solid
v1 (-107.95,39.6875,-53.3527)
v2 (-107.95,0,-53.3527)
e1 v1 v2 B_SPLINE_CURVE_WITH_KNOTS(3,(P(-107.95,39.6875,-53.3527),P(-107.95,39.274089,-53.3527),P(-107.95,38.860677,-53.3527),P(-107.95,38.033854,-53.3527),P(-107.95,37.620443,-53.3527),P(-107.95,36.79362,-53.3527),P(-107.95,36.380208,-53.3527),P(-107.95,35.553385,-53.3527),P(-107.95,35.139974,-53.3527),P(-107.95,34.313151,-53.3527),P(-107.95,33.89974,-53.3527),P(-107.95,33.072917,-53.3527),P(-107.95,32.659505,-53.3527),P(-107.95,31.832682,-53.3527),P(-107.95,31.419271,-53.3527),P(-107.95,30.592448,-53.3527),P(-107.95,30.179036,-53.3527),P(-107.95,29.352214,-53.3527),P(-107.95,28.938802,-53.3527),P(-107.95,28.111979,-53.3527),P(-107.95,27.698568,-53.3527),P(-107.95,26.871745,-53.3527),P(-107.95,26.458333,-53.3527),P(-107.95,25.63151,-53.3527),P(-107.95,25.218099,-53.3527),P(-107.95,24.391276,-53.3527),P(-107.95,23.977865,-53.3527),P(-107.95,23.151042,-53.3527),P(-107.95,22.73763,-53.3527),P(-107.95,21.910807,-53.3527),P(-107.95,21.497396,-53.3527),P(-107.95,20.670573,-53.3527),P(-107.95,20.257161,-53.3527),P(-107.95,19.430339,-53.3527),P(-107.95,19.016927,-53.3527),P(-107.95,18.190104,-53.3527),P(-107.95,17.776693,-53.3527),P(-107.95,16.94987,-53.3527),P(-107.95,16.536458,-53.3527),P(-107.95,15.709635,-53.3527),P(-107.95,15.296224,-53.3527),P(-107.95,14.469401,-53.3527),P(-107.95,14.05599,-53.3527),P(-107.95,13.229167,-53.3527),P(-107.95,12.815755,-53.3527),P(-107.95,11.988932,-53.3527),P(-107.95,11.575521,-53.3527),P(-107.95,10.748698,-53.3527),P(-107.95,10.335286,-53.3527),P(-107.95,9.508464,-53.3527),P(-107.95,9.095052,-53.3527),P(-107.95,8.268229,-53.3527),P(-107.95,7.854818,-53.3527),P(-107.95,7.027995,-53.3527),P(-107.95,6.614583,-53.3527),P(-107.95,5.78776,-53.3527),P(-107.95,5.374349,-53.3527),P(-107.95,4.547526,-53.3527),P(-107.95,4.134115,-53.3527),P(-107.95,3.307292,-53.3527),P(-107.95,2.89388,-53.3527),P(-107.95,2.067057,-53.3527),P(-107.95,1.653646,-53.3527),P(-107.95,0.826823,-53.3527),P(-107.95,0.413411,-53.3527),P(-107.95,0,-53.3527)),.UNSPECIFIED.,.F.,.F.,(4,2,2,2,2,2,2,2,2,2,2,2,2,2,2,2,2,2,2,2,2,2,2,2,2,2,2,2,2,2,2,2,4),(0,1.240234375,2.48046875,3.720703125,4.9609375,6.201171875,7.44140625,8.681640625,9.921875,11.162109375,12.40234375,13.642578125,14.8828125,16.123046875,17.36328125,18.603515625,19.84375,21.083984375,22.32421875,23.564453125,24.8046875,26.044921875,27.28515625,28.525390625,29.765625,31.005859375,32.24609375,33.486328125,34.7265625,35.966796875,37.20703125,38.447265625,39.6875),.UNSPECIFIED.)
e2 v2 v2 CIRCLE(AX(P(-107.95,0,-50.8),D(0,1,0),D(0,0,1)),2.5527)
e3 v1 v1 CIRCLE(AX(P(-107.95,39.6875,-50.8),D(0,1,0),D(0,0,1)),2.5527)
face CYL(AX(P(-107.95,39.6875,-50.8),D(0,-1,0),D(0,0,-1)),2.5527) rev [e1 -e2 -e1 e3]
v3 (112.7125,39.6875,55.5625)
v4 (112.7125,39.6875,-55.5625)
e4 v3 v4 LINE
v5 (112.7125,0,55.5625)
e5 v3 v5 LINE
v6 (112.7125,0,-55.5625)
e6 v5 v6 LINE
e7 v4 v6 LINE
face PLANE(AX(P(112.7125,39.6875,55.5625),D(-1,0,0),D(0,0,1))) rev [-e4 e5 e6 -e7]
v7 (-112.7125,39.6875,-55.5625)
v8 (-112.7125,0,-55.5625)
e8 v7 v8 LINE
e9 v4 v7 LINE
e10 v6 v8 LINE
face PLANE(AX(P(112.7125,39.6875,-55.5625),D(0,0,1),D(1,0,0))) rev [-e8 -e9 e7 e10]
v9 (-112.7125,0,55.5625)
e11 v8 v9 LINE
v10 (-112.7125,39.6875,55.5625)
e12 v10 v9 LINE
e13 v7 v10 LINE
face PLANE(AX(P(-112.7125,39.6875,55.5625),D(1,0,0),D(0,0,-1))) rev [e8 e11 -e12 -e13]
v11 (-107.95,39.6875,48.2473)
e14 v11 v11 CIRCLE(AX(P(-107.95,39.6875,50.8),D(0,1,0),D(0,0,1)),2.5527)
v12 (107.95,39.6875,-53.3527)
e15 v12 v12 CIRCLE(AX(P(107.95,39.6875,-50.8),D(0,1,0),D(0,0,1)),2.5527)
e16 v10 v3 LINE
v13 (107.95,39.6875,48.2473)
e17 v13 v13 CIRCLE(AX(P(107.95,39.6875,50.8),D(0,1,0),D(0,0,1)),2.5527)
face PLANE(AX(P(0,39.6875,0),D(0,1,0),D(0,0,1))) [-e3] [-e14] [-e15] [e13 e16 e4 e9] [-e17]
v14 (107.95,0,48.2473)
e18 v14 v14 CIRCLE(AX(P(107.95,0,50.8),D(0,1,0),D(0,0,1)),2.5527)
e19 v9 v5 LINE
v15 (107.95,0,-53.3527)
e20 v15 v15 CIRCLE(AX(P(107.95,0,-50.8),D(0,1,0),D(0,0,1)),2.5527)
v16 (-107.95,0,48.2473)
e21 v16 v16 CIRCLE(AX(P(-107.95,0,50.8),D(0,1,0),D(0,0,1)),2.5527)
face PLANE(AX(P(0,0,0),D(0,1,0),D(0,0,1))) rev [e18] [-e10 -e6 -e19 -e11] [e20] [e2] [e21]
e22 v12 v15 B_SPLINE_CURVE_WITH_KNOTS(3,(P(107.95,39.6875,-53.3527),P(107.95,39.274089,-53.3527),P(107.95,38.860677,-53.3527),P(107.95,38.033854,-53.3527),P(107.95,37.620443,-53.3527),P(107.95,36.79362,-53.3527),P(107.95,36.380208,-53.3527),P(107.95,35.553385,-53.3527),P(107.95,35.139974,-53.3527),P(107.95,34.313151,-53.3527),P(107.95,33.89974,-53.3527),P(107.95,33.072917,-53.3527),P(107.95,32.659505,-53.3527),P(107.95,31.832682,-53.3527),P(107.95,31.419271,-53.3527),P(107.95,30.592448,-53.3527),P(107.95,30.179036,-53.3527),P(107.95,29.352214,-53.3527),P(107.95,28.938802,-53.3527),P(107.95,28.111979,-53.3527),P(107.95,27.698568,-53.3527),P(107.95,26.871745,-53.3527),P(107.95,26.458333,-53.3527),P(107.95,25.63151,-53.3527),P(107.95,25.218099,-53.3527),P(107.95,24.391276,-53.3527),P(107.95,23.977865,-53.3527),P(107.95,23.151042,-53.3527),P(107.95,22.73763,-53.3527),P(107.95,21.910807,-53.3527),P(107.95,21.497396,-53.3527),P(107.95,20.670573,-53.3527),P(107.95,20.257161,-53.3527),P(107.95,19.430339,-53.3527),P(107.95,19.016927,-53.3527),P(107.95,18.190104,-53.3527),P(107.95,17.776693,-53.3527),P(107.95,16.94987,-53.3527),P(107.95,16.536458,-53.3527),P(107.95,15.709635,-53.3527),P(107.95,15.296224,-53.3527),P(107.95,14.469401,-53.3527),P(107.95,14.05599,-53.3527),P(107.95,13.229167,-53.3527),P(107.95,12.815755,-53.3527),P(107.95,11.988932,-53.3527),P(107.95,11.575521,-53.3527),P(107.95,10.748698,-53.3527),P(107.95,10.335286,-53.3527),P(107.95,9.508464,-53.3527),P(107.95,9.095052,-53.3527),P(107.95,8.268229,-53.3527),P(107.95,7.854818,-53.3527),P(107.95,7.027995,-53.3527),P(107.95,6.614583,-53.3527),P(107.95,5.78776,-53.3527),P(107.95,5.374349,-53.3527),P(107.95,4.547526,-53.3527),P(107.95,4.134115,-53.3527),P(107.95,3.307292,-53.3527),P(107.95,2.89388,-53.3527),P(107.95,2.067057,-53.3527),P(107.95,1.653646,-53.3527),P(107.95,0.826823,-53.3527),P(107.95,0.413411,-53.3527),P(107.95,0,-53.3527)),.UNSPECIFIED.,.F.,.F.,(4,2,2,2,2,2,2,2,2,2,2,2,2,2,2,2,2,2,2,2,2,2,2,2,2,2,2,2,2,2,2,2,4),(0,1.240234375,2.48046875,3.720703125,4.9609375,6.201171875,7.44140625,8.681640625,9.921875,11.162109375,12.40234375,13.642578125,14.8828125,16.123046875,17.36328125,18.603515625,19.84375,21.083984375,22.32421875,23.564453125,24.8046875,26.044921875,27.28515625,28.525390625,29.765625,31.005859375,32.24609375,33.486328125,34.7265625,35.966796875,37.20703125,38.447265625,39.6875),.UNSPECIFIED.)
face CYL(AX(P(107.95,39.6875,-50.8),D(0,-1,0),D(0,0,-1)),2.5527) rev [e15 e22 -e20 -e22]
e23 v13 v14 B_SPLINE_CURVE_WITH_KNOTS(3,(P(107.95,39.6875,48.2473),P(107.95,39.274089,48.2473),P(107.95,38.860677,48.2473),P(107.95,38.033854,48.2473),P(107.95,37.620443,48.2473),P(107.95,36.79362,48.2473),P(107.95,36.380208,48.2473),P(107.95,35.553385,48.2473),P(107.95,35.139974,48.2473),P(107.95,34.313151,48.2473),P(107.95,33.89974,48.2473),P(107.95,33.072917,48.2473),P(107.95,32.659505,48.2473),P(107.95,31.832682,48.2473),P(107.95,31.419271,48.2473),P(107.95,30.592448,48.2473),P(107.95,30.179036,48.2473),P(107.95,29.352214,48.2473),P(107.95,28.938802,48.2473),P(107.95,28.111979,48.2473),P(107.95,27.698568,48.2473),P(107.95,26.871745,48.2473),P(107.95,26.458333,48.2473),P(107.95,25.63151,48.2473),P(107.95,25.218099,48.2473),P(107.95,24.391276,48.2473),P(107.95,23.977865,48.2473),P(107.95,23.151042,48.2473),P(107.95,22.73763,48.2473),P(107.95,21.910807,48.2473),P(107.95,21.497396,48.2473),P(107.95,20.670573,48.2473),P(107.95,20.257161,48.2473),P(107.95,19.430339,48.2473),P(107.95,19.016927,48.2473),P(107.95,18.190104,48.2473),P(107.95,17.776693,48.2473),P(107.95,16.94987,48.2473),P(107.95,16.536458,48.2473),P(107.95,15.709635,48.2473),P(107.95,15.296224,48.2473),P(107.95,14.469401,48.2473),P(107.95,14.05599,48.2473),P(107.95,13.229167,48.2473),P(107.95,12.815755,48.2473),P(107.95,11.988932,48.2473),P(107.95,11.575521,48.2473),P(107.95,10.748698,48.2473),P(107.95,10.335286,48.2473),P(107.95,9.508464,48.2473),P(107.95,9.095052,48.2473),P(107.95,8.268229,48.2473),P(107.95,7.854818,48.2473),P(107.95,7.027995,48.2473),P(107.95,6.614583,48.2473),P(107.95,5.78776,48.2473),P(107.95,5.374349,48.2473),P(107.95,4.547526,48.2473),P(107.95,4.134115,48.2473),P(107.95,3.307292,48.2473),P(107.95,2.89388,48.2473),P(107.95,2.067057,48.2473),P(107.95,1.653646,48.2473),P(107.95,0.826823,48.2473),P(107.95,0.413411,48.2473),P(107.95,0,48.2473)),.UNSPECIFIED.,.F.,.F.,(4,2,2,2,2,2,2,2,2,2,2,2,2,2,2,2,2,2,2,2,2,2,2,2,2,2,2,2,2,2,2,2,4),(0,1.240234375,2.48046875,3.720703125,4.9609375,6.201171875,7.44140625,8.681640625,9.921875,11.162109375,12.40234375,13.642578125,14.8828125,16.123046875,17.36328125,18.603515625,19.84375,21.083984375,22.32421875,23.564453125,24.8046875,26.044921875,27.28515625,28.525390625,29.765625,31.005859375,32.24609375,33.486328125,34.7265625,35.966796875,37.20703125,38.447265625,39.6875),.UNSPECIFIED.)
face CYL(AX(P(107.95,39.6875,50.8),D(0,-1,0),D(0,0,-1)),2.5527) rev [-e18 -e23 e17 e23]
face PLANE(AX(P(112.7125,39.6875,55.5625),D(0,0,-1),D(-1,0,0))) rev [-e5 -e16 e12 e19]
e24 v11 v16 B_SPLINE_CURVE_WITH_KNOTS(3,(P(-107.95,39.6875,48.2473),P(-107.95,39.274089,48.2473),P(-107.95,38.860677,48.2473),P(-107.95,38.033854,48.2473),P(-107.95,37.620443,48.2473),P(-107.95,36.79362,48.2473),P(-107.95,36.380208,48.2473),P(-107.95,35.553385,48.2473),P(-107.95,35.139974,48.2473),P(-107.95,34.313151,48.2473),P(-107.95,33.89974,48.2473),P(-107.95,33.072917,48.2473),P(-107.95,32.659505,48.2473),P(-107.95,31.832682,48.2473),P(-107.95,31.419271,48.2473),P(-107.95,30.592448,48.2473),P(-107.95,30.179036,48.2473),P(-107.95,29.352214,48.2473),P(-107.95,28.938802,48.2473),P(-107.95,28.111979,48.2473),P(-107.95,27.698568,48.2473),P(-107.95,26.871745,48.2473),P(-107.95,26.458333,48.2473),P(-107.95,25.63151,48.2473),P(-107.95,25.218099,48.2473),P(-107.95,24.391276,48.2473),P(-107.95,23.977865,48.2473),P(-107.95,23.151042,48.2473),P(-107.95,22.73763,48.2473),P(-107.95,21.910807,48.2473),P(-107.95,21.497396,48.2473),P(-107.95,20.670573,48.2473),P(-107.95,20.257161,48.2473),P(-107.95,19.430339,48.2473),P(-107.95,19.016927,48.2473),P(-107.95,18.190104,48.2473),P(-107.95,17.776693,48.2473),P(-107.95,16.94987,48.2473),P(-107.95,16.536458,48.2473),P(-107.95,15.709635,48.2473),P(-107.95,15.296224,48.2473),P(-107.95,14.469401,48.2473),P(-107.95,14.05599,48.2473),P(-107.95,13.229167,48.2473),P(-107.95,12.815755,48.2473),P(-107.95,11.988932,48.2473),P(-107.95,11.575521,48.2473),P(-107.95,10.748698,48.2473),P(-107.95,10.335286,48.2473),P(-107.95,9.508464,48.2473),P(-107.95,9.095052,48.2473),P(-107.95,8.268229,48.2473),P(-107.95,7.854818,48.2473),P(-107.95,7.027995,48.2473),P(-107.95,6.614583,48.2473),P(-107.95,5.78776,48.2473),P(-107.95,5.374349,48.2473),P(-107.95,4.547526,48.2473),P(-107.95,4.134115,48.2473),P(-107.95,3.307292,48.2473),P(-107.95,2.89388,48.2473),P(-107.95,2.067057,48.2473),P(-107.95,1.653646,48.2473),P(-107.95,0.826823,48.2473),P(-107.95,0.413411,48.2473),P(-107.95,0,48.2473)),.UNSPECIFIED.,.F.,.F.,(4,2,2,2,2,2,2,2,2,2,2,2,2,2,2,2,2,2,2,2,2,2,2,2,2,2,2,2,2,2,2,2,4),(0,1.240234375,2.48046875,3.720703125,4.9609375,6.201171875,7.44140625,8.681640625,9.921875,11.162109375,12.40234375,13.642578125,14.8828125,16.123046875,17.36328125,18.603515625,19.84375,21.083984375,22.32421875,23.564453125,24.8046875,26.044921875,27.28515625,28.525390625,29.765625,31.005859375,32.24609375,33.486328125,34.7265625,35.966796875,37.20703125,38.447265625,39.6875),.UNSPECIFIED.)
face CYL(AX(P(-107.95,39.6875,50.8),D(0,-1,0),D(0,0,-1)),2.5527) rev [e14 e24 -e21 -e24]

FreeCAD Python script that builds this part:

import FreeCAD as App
import Part
import Sketcher
from FreeCAD import Vector
Q = App.Units.Quantity


def add_polygon(sketch, points):
    """Adds a closed chain of lines whose ends are joined by coincident constraints."""
    first, n = sketch.GeometryCount, len(points)
    for a, b in zip(points, points[1:] + points[:1]):
        sketch.addGeometry(Part.LineSegment(App.Vector(*a, 0), App.Vector(*b, 0)), False)
    for i in range(n):
        sketch.addConstraint(Sketcher.Constraint("Coincident", first + i, 2, first + (i + 1) % n, 1))

doc = App.newDocument("Part")
params = doc.addObject("Spreadsheet::Sheet", "Params")
for row, (alias, value) in enumerate([
    ("sketch1_diameter", "0.201 in"),
    ("sketch1_width", "8.875 in"),
    ("sketch1_height", "4.375 in"),
    ("pad1_length", "1.5625 in"),
], start=1):
    params.set(f"A{row}", alias)
    params.set(f"B{row}", "=" + value)
    params.setAlias(f"B{row}", alias)

body = doc.addObject("PartDesign::Body", "Body")

sketch1 = body.newObject("Sketcher::SketchObject", "Sketch")
sketch1.AttachmentSupport = (doc.getObject("XZ_Plane"), [""])
sketch1.MapMode = "FlatFace"
add_polygon(sketch1, [(-112.7125, -55.5625), (-112.7125, 55.5625), (112.7125, 55.5625), (112.7125, -55.5625)])
sketch1.addGeometry(Part.Circle(Vector(-107.95, 50.8, 0), Vector(0, 0, 1), 2.5527), False)
sketch1.addGeometry(Part.Circle(Vector(107.95, 50.8, 0), Vector(0, 0, 1), 2.5527), False)
sketch1.addGeometry(Part.Circle(Vector(-107.95, -50.8, 0), Vector(0, 0, 1), 2.5527), False)
sketch1.addGeometry(Part.Circle(Vector(107.95, -50.8, 0), Vector(0, 0, 1), 2.5527), False)
sketch1.addConstraint([
    Sketcher.Constraint("Vertical", 0),
    Sketcher.Constraint("Horizontal", 1),
    Sketcher.Constraint("Vertical", 2),
    Sketcher.Constraint("Horizontal", 3),
    Sketcher.Constraint("Equal", 4, 5),
    Sketcher.Constraint("Equal", 5, 6),
    Sketcher.Constraint("Equal", 6, 7),
    Sketcher.Constraint("Symmetric", 5, 3, 6, 3, -1, 1),
    Sketcher.Constraint("Symmetric", 4, 3, 7, 3, -1, 1),
    Sketcher.Constraint("Symmetric", 0, 2, 2, 2, -1, 1),
    Sketcher.Constraint("Symmetric", 4, 3, 5, 3, -2),
    Sketcher.Constraint("Diameter", 4, Q("0.201 in")),
    Sketcher.Constraint("DistanceY", -1, 1, 4, 3, Q("2 in")),
    Sketcher.Constraint("DistanceX", 4, 3, 5, 3, Q("8.5 in")),
    Sketcher.Constraint("DistanceX", 1, 1, 1, 2, Q("8.875 in")),
    Sketcher.Constraint("DistanceY", 0, 1, 0, 2, Q("4.375 in")),
])
sketch1.setExpression("Constraints[15]", "Params.sketch1_diameter")
sketch1.setExpression("Constraints[18]", "Params.sketch1_width")
sketch1.setExpression("Constraints[19]", "Params.sketch1_height")
pad1 = body.newObject("PartDesign::Pad", "Pad")
pad1.Profile = sketch1
pad1.setExpression("Length", "Params.pad1_length")
pad1.Reversed = True

doc.recompute()
